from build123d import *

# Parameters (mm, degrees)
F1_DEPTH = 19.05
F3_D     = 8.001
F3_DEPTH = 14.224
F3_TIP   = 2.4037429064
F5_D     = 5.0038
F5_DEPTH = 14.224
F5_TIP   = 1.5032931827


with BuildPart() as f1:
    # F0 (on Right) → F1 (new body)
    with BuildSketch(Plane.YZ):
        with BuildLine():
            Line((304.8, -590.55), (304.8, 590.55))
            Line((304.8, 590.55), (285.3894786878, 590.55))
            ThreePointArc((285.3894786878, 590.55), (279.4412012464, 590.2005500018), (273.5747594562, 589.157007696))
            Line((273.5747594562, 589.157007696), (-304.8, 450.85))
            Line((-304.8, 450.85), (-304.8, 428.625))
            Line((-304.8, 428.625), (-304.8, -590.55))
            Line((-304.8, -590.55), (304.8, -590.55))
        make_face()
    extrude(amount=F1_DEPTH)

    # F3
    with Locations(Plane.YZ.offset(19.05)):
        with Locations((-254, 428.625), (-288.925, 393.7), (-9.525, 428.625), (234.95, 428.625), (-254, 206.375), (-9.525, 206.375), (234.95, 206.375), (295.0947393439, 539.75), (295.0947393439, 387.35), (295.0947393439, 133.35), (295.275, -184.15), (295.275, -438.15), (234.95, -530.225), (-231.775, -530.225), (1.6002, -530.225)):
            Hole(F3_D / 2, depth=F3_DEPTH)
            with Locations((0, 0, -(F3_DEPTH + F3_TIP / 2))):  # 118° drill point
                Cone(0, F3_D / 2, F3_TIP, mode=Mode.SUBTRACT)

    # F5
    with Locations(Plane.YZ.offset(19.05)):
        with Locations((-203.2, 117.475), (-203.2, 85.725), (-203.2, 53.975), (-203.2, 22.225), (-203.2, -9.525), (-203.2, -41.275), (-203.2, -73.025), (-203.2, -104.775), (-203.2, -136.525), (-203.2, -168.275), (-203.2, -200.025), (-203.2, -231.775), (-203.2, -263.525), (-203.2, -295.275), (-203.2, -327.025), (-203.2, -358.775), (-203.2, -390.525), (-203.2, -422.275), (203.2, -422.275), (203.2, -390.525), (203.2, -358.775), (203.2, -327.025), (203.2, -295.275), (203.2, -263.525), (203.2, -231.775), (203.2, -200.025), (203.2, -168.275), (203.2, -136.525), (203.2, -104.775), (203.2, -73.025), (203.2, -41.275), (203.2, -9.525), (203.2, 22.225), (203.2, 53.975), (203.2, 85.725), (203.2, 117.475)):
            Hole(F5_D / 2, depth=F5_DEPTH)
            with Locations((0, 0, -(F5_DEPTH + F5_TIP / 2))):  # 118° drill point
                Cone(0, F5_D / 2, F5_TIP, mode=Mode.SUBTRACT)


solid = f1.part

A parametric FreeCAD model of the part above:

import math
import FreeCAD as App
import Part
import Sketcher
Q = App.Units.Quantity

doc = App.newDocument("Part")
params = doc.addObject("Spreadsheet::Sheet", "Params")
for row, (alias, value) in enumerate([
    ("sketch1_radius", "2 in"),
    ("sketch1_width", "24 in"),
    ("sketch1_height", "41 in"),
    ("sketch1_height2", "46.5 in"),
    ("pad1_length", "0.75 in"),
    ("sketch2_diameter", "0.315 in"),
    ("hole_diameter", "0.315 in"),
    ("hole_depth", "0.56 in"),
    ("sketch3_diameter", "0.197 in"),
    ("hole2_diameter", "0.197 in"),
    ("hole2_depth", "0.56 in"),
], start=1):
    params.set(f"A{row}", alias)
    params.set(f"B{row}", "=" + value)
    params.setAlias(f"B{row}", alias)

body = doc.addObject("PartDesign::Body", "Body")

# Sketch on YZ plane
sketch1 = body.newObject("Sketcher::SketchObject", "Sketch")
sketch1.AttachmentSupport = (doc.getObject("YZ_Plane"), [""])
sketch1.MapMode = "FlatFace"
sketch1.addGeometry(Part.LineSegment(App.Vector(305, -591, 0), App.Vector(305, 591, 0)), False)
sketch1.addGeometry(Part.LineSegment(App.Vector(305, 591, 0), App.Vector(285, 591, 0)), False)
sketch1.addGeometry(Part.ArcOfCircle(Part.Circle(App.Vector(285, 540, 0), App.Vector(0, 0, 1), 51), math.radians(90), math.radians(103.45)), False)
sketch1.addGeometry(Part.LineSegment(App.Vector(274, 589, 0), App.Vector(-305, 451, 0)), False)
sketch1.addGeometry(Part.LineSegment(App.Vector(-305, 451, 0), App.Vector(-305, -591, 0)), False)
sketch1.addGeometry(Part.LineSegment(App.Vector(-305, -591, 0), App.Vector(305, -591, 0)), False)
sketch1.addConstraint(Sketcher.Constraint("Coincident", 0, 2, 1, 1))
sketch1.addConstraint(Sketcher.Constraint("Tangent", 1, 2, 2, 1))
sketch1.addConstraint(Sketcher.Constraint("Tangent", 2, 2, 3, 1))
sketch1.addConstraint(Sketcher.Constraint("Coincident", 3, 2, 4, 1))
sketch1.addConstraint(Sketcher.Constraint("Coincident", 4, 2, 5, 1))
sketch1.addConstraint(Sketcher.Constraint("Coincident", 5, 2, 0, 1))
sketch1.addConstraint(Sketcher.Constraint("Vertical", 0))
sketch1.addConstraint(Sketcher.Constraint("Horizontal", 1))
sketch1.addConstraint(Sketcher.Constraint("Vertical", 4))
sketch1.addConstraint(Sketcher.Constraint("Horizontal", 5))
sketch1.addConstraint(Sketcher.Constraint("Symmetric", 0, 2, 4, 2, -1, 1))
sketch1.addConstraint(Sketcher.Constraint("Radius", 2, Q("2 in")))
sketch1.addConstraint(Sketcher.Constraint("DistanceX", 5, 1, 5, 2, Q("24 in")))
sketch1.addConstraint(Sketcher.Constraint("DistanceY", 4, 2, 4, 1, Q("41 in")))
sketch1.addConstraint(Sketcher.Constraint("DistanceY", 0, 1, 0, 2, Q("46.5 in")))
sketch1.addConstraint(Sketcher.Constraint("DistanceX", 1, 2, 1, 1, 19.410521))
sketch1.setExpression("Constraints[11]", "Params.sketch1_radius")
sketch1.setExpression("Constraints[12]", "Params.sketch1_width")
sketch1.setExpression("Constraints[13]", "Params.sketch1_height")
sketch1.setExpression("Constraints[14]", "Params.sketch1_height2")
pad1 = body.newObject("PartDesign::Pad", "Pad")
pad1.Profile = sketch1
pad1.setExpression("Length", "Params.pad1_length")

# Sketch on YZ plane
sketch2 = body.newObject("Sketcher::SketchObject", "Sketch001")
sketch2.AttachmentSupport = (doc.getObject("YZ_Plane"), [""])
sketch2.MapMode = "FlatFace"
sketch2.AttachmentOffset = App.Placement(App.Vector(0, 0, 0.75 * 25.4), App.Rotation())
sketch2.addGeometry(Part.Circle(App.Vector(-254, 428.6, 0), App.Vector(0, 0, 1), 4), False)
sketch2.addGeometry(Part.Circle(App.Vector(-288.9, 393.7, 0), App.Vector(0, 0, 1), 4), False)
sketch2.addGeometry(Part.Circle(App.Vector(-9.5, 428.6, 0), App.Vector(0, 0, 1), 4), False)
sketch2.addGeometry(Part.Circle(App.Vector(234.9, 428.6, 0), App.Vector(0, 0, 1), 4), False)
sketch2.addGeometry(Part.Circle(App.Vector(-254, 206.4, 0), App.Vector(0, 0, 1), 4), False)
sketch2.addGeometry(Part.Circle(App.Vector(-9.5, 206.4, 0), App.Vector(0, 0, 1), 4), False)
sketch2.addGeometry(Part.Circle(App.Vector(234.9, 206.4, 0), App.Vector(0, 0, 1), 4), False)
sketch2.addGeometry(Part.Circle(App.Vector(295.1, 539.8, 0), App.Vector(0, 0, 1), 4), False)
sketch2.addGeometry(Part.Circle(App.Vector(295.1, 387.4, 0), App.Vector(0, 0, 1), 4), False)
sketch2.addGeometry(Part.Circle(App.Vector(295.1, 133.3, 0), App.Vector(0, 0, 1), 4), False)
sketch2.addGeometry(Part.Circle(App.Vector(295.3, -184.2, 0), App.Vector(0, 0, 1), 4), False)
sketch2.addGeometry(Part.Circle(App.Vector(295.3, -438.1, 0), App.Vector(0, 0, 1), 4), False)
sketch2.addGeometry(Part.Circle(App.Vector(234.9, -530.2, 0), App.Vector(0, 0, 1), 4), False)
sketch2.addGeometry(Part.Circle(App.Vector(-231.8, -530.2, 0), App.Vector(0, 0, 1), 4), False)
sketch2.addGeometry(Part.Circle(App.Vector(1.6, -530.2, 0), App.Vector(0, 0, 1), 4), False)
sketch2.addConstraint(Sketcher.Constraint("Equal", 0, 1))
sketch2.addConstraint(Sketcher.Constraint("Equal", 1, 2))
sketch2.addConstraint(Sketcher.Constraint("Equal", 2, 3))
sketch2.addConstraint(Sketcher.Constraint("Equal", 3, 4))
sketch2.addConstraint(Sketcher.Constraint("Equal", 4, 5))
sketch2.addConstraint(Sketcher.Constraint("Equal", 5, 6))
sketch2.addConstraint(Sketcher.Constraint("Equal", 6, 7))
sketch2.addConstraint(Sketcher.Constraint("Equal", 7, 8))
sketch2.addConstraint(Sketcher.Constraint("Equal", 8, 9))
sketch2.addConstraint(Sketcher.Constraint("Equal", 9, 10))
sketch2.addConstraint(Sketcher.Constraint("Equal", 10, 11))
sketch2.addConstraint(Sketcher.Constraint("Equal", 11, 12))
sketch2.addConstraint(Sketcher.Constraint("Equal", 12, 13))
sketch2.addConstraint(Sketcher.Constraint("Equal", 13, 14))
sketch2.addConstraint(Sketcher.Constraint("Horizontal", 0, 3, 2, 3))
sketch2.addConstraint(Sketcher.Constraint("Horizontal", 2, 3, 3, 3))
sketch2.addConstraint(Sketcher.Constraint("Horizontal", 4, 3, 5, 3))
sketch2.addConstraint(Sketcher.Constraint("Horizontal", 5, 3, 6, 3))
sketch2.addConstraint(Sketcher.Constraint("Horizontal", 12, 3, 13, 3))
sketch2.addConstraint(Sketcher.Constraint("Horizontal", 13, 3, 14, 3))
sketch2.addConstraint(Sketcher.Constraint("Vertical", 0, 3, 4, 3))
sketch2.addConstraint(Sketcher.Constraint("Vertical", 2, 3, 5, 3))
sketch2.addConstraint(Sketcher.Constraint("Vertical", 3, 3, 6, 3))
sketch2.addConstraint(Sketcher.Constraint("Vertical", 7, 3, 8, 3))
sketch2.addConstraint(Sketcher.Constraint("Vertical", 8, 3, 9, 3))
sketch2.addConstraint(Sketcher.Constraint("Vertical", 10, 3, 11, 3))
sketch2.addConstraint(Sketcher.Constraint("Vertical", 6, 3, 12, 3))
sketch2.addConstraint(Sketcher.Constraint("Diameter", 0, Q("0.315 in")))
sketch2.addConstraint(Sketcher.Constraint("DistanceX", 0, 3, -1, 1, Q("10 in")))
sketch2.addConstraint(Sketcher.Constraint("DistanceX", 1, 3, 2, 3, Q("11 in")))
sketch2.addConstraint(Sketcher.Constraint("DistanceY", 8, 3, 7, 3, Q("6 in")))
sketch2.addConstraint(Sketcher.Constraint("DistanceY", 9, 3, 8, 3, Q("10 in")))
sketch2.addConstraint(Sketcher.Constraint("DistanceX", 5, 3, 10, 3, Q("12 in")))
sketch2.addConstraint(Sketcher.Constraint("DistanceY", 11, 3, 10, 3, Q("10 in")))
sketch2.addConstraint(Sketcher.Constraint("DistanceY", 12, 3, 6, 3, Q("29 in")))
sketch2.addConstraint(Sketcher.Constraint("DistanceY", -1, 1, 1, 3, Q("15.5 in")))
sketch2.addConstraint(Sketcher.Constraint("DistanceY", 10, 3, 9, 3, Q("12.5 in")))
sketch2.addConstraint(Sketcher.Constraint("DistanceX", -1, 1, 3, 3, Q("9.25 in")))
sketch2.addConstraint(Sketcher.Constraint("DistanceY", -1, 1, 7, 3, Q("21.25 in")))
sketch2.addConstraint(Sketcher.Constraint("DistanceY", 4, 3, 0, 3, Q("8.75 in")))
sketch2.addConstraint(Sketcher.Constraint("DistanceX", 13, 3, 11, 3, Q("20.75 in")))
sketch2.addConstraint(Sketcher.Constraint("DistanceY", -1, 1, 0, 3, Q("16.875 in")))
sketch2.addConstraint(Sketcher.Constraint("DistanceX", 1, 3, -1, 1, Q("11.375 in")))
sketch2.addConstraint(Sketcher.Constraint("DistanceX", -1, 1, 14, 3, Q("0.063 in")))
sketch2.addConstraint(Sketcher.Constraint("DistanceX", -1, 1, 7, 3, 295.094739))
sketch2.setExpression("Constraints[27]", "Params.sketch2_diameter")
doc.recompute()
hole = body.newObject("PartDesign::Hole", "Hole")
hole.Profile = sketch2
hole.ThreadType = "None"
hole.setExpression("Diameter", "Params.hole_diameter")
hole.DepthType = "Dimension"
hole.setExpression("Depth", "Params.hole_depth")
hole.DrillPoint = "Angled"
hole.DrillPointAngle = 118

# Sketch on YZ plane
sketch3 = body.newObject("Sketcher::SketchObject", "Sketch002")
sketch3.AttachmentSupport = (doc.getObject("YZ_Plane"), [""])
sketch3.MapMode = "FlatFace"
sketch3.AttachmentOffset = App.Placement(App.Vector(0, 0, 0.75 * 25.4), App.Rotation())
sketch3.addGeometry(Part.Circle(App.Vector(-203.2, 117.5, 0), App.Vector(0, 0, 1), 2.5), False)
sketch3.addGeometry(Part.Circle(App.Vector(-203.2, 85.7, 0), App.Vector(0, 0, 1), 2.5), False)
sketch3.addGeometry(Part.Circle(App.Vector(-203.2, 54, 0), App.Vector(0, 0, 1), 2.5), False)
sketch3.addGeometry(Part.Circle(App.Vector(-203.2, 22.2, 0), App.Vector(0, 0, 1), 2.5), False)
sketch3.addGeometry(Part.Circle(App.Vector(-203.2, -9.5, 0), App.Vector(0, 0, 1), 2.5), False)
sketch3.addGeometry(Part.Circle(App.Vector(-203.2, -41.3, 0), App.Vector(0, 0, 1), 2.5), False)
sketch3.addGeometry(Part.Circle(App.Vector(-203.2, -73, 0), App.Vector(0, 0, 1), 2.5), False)
sketch3.addGeometry(Part.Circle(App.Vector(-203.2, -104.8, 0), App.Vector(0, 0, 1), 2.5), False)
sketch3.addGeometry(Part.Circle(App.Vector(-203.2, -136.5, 0), App.Vector(0, 0, 1), 2.5), False)
sketch3.addGeometry(Part.Circle(App.Vector(-203.2, -168.3, 0), App.Vector(0, 0, 1), 2.5), False)
sketch3.addGeometry(Part.Circle(App.Vector(-203.2, -200, 0), App.Vector(0, 0, 1), 2.5), False)
sketch3.addGeometry(Part.Circle(App.Vector(-203.2, -231.8, 0), App.Vector(0, 0, 1), 2.5), False)
sketch3.addGeometry(Part.Circle(App.Vector(-203.2, -263.5, 0), App.Vector(0, 0, 1), 2.5), False)
sketch3.addGeometry(Part.Circle(App.Vector(-203.2, -295.3, 0), App.Vector(0, 0, 1), 2.5), False)
sketch3.addGeometry(Part.Circle(App.Vector(-203.2, -327, 0), App.Vector(0, 0, 1), 2.5), False)
sketch3.addGeometry(Part.Circle(App.Vector(-203.2, -358.8, 0), App.Vector(0, 0, 1), 2.5), False)
sketch3.addGeometry(Part.Circle(App.Vector(-203.2, -390.5, 0), App.Vector(0, 0, 1), 2.5), False)
sketch3.addGeometry(Part.Circle(App.Vector(-203.2, -422.3, 0), App.Vector(0, 0, 1), 2.5), False)
sketch3.addGeometry(Part.Circle(App.Vector(203.2, -422.3, 0), App.Vector(0, 0, 1), 2.5), False)
sketch3.addGeometry(Part.Circle(App.Vector(203.2, -390.5, 0), App.Vector(0, 0, 1), 2.5), False)
sketch3.addGeometry(Part.Circle(App.Vector(203.2, -358.8, 0), App.Vector(0, 0, 1), 2.5), False)
sketch3.addGeometry(Part.Circle(App.Vector(203.2, -327, 0), App.Vector(0, 0, 1), 2.5), False)
sketch3.addGeometry(Part.Circle(App.Vector(203.2, -295.3, 0), App.Vector(0, 0, 1), 2.5), False)
sketch3.addGeometry(Part.Circle(App.Vector(203.2, -263.5, 0), App.Vector(0, 0, 1), 2.5), False)
sketch3.addGeometry(Part.Circle(App.Vector(203.2, -231.8, 0), App.Vector(0, 0, 1), 2.5), False)
sketch3.addGeometry(Part.Circle(App.Vector(203.2, -200, 0), App.Vector(0, 0, 1), 2.5), False)
sketch3.addGeometry(Part.Circle(App.Vector(203.2, -168.3, 0), App.Vector(0, 0, 1), 2.5), False)
sketch3.addGeometry(Part.Circle(App.Vector(203.2, -136.5, 0), App.Vector(0, 0, 1), 2.5), False)
sketch3.addGeometry(Part.Circle(App.Vector(203.2, -104.8, 0), App.Vector(0, 0, 1), 2.5), False)
sketch3.addGeometry(Part.Circle(App.Vector(203.2, -73, 0), App.Vector(0, 0, 1), 2.5), False)
sketch3.addGeometry(Part.Circle(App.Vector(203.2, -41.3, 0), App.Vector(0, 0, 1), 2.5), False)
sketch3.addGeometry(Part.Circle(App.Vector(203.2, -9.5, 0), App.Vector(0, 0, 1), 2.5), False)
sketch3.addGeometry(Part.Circle(App.Vector(203.2, 22.2, 0), App.Vector(0, 0, 1), 2.5), False)
sketch3.addGeometry(Part.Circle(App.Vector(203.2, 54, 0), App.Vector(0, 0, 1), 2.5), False)
sketch3.addGeometry(Part.Circle(App.Vector(203.2, 85.7, 0), App.Vector(0, 0, 1), 2.5), False)
sketch3.addGeometry(Part.Circle(App.Vector(203.2, 117.5, 0), App.Vector(0, 0, 1), 2.5), False)
sketch3.addConstraint(Sketcher.Constraint("Equal", 0, 1))
sketch3.addConstraint(Sketcher.Constraint("Equal", 1, 2))
sketch3.addConstraint(Sketcher.Constraint("Equal", 2, 3))
sketch3.addConstraint(Sketcher.Constraint("Equal", 3, 4))
sketch3.addConstraint(Sketcher.Constraint("Equal", 4, 5))
sketch3.addConstraint(Sketcher.Constraint("Equal", 5, 6))
sketch3.addConstraint(Sketcher.Constraint("Equal", 6, 7))
sketch3.addConstraint(Sketcher.Constraint("Equal", 7, 8))
sketch3.addConstraint(Sketcher.Constraint("Equal", 8, 9))
sketch3.addConstraint(Sketcher.Constraint("Equal", 9, 10))
sketch3.addConstraint(Sketcher.Constraint("Equal", 10, 11))
sketch3.addConstraint(Sketcher.Constraint("Equal", 11, 12))
sketch3.addConstraint(Sketcher.Constraint("Equal", 12, 13))
sketch3.addConstraint(Sketcher.Constraint("Equal", 13, 14))
sketch3.addConstraint(Sketcher.Constraint("Equal", 14, 15))
sketch3.addConstraint(Sketcher.Constraint("Equal", 15, 16))
sketch3.addConstraint(Sketcher.Constraint("Equal", 16, 17))
sketch3.addConstraint(Sketcher.Constraint("Equal", 17, 18))
sketch3.addConstraint(Sketcher.Constraint("Equal", 18, 19))
sketch3.addConstraint(Sketcher.Constraint("Equal", 19, 20))
sketch3.addConstraint(Sketcher.Constraint("Equal", 20, 21))
sketch3.addConstraint(Sketcher.Constraint("Equal", 21, 22))
sketch3.addConstraint(Sketcher.Constraint("Equal", 22, 23))
sketch3.addConstraint(Sketcher.Constraint("Equal", 23, 24))
sketch3.addConstraint(Sketcher.Constraint("Equal", 24, 25))
sketch3.addConstraint(Sketcher.Constraint("Equal", 25, 26))
sketch3.addConstraint(Sketcher.Constraint("Equal", 26, 27))
sketch3.addConstraint(Sketcher.Constraint("Equal", 27, 28))
sketch3.addConstraint(Sketcher.Constraint("Equal", 28, 29))
sketch3.addConstraint(Sketcher.Constraint("Equal", 29, 30))
sketch3.addConstraint(Sketcher.Constraint("Equal", 30, 31))
sketch3.addConstraint(Sketcher.Constraint("Equal", 31, 32))
sketch3.addConstraint(Sketcher.Constraint("Equal", 32, 33))
sketch3.addConstraint(Sketcher.Constraint("Equal", 33, 34))
sketch3.addConstraint(Sketcher.Constraint("Equal", 34, 35))
sketch3.addConstraint(Sketcher.Constraint("Symmetric", 17, 3, 18, 3, -2))
sketch3.addConstraint(Sketcher.Constraint("Symmetric", 16, 3, 19, 3, -2))
sketch3.addConstraint(Sketcher.Constraint("Symmetric", 15, 3, 20, 3, -2))
sketch3.addConstraint(Sketcher.Constraint("Symmetric", 14, 3, 21, 3, -2))
sketch3.addConstraint(Sketcher.Constraint("Symmetric", 13, 3, 22, 3, -2))
sketch3.addConstraint(Sketcher.Constraint("Symmetric", 12, 3, 23, 3, -2))
sketch3.addConstraint(Sketcher.Constraint("Symmetric", 11, 3, 24, 3, -2))
sketch3.addConstraint(Sketcher.Constraint("Symmetric", 10, 3, 25, 3, -2))
sketch3.addConstraint(Sketcher.Constraint("Symmetric", 9, 3, 26, 3, -2))
sketch3.addConstraint(Sketcher.Constraint("Symmetric", 8, 3, 27, 3, -2))
sketch3.addConstraint(Sketcher.Constraint("Symmetric", 7, 3, 28, 3, -2))
sketch3.addConstraint(Sketcher.Constraint("Symmetric", 6, 3, 29, 3, -2))
sketch3.addConstraint(Sketcher.Constraint("Symmetric", 5, 3, 30, 3, -2))
sketch3.addConstraint(Sketcher.Constraint("Symmetric", 4, 3, 31, 3, -2))
sketch3.addConstraint(Sketcher.Constraint("Symmetric", 3, 3, 32, 3, -2))
sketch3.addConstraint(Sketcher.Constraint("Symmetric", 2, 3, 33, 3, -2))
sketch3.addConstraint(Sketcher.Constraint("Symmetric", 1, 3, 34, 3, -2))
sketch3.addConstraint(Sketcher.Constraint("Symmetric", 0, 3, 35, 3, -2))
sketch3.addConstraint(Sketcher.Constraint("Vertical", 0, 3, 1, 3))
sketch3.addConstraint(Sketcher.Constraint("Vertical", 1, 3, 2, 3))
sketch3.addConstraint(Sketcher.Constraint("Vertical", 2, 3, 3, 3))
sketch3.addConstraint(Sketcher.Constraint("Vertical", 3, 3, 4, 3))
sketch3.addConstraint(Sketcher.Constraint("Vertical", 4, 3, 5, 3))
sketch3.addConstraint(Sketcher.Constraint("Vertical", 5, 3, 6, 3))
sketch3.addConstraint(Sketcher.Constraint("Vertical", 6, 3, 7, 3))
sketch3.addConstraint(Sketcher.Constraint("Vertical", 7, 3, 8, 3))
sketch3.addConstraint(Sketcher.Constraint("Vertical", 8, 3, 9, 3))
sketch3.addConstraint(Sketcher.Constraint("Vertical", 9, 3, 10, 3))
sketch3.addConstraint(Sketcher.Constraint("Vertical", 10, 3, 11, 3))
sketch3.addConstraint(Sketcher.Constraint("Vertical", 11, 3, 12, 3))
sketch3.addConstraint(Sketcher.Constraint("Vertical", 12, 3, 13, 3))
sketch3.addConstraint(Sketcher.Constraint("Vertical", 13, 3, 14, 3))
sketch3.addConstraint(Sketcher.Constraint("Vertical", 14, 3, 15, 3))
sketch3.addConstraint(Sketcher.Constraint("Vertical", 15, 3, 16, 3))
sketch3.addConstraint(Sketcher.Constraint("Vertical", 16, 3, 17, 3))
sketch3.addConstraint(Sketcher.Constraint("Diameter", 0, Q("0.197 in")))
sketch3.addConstraint(Sketcher.Constraint("DistanceX", 0, 3, -1, 1, Q("8 in")))
sketch3.addConstraint(Sketcher.Constraint("DistanceY", 4, 3, 0, 3, Q("5 in")))
sketch3.addConstraint(Sketcher.Constraint("DistanceY", 5, 3, 1, 3, Q("5 in")))
sketch3.addConstraint(Sketcher.Constraint("DistanceY", 6, 3, 2, 3, Q("5 in")))
sketch3.addConstraint(Sketcher.Constraint("DistanceY", 7, 3, 3, 3, Q("5 in")))
sketch3.addConstraint(Sketcher.Constraint("DistanceY", 8, 3, 4, 3, Q("5 in")))
sketch3.addConstraint(Sketcher.Constraint("DistanceY", 9, 3, 5, 3, Q("5 in")))
sketch3.addConstraint(Sketcher.Constraint("DistanceY", 10, 3, 6, 3, Q("5 in")))
sketch3.addConstraint(Sketcher.Constraint("DistanceY", 11, 3, 7, 3, Q("5 in")))
sketch3.addConstraint(Sketcher.Constraint("DistanceY", 12, 3, 8, 3, Q("5 in")))
sketch3.addConstraint(Sketcher.Constraint("DistanceY", 13, 3, 9, 3, Q("5 in")))
sketch3.addConstraint(Sketcher.Constraint("DistanceY", 14, 3, 10, 3, Q("5 in")))
sketch3.addConstraint(Sketcher.Constraint("DistanceY", 15, 3, 11, 3, Q("5 in")))
sketch3.addConstraint(Sketcher.Constraint("DistanceY", 16, 3, 12, 3, Q("5 in")))
sketch3.addConstraint(Sketcher.Constraint("DistanceY", 17, 3, 13, 3, Q("5 in")))
sketch3.addConstraint(Sketcher.Constraint("DistanceY", 2, 3, 0, 3, Q("2.5 in")))
sketch3.addConstraint(Sketcher.Constraint("DistanceY", 3, 3, 1, 3, Q("2.5 in")))
sketch3.addConstraint(Sketcher.Constraint("DistanceY", 1, 3, 0, 3, Q("1.25 in")))
sketch3.addConstraint(Sketcher.Constraint("DistanceY", -1, 1, 0, 3, Q("4.625 in")))
sketch3.setExpression("Constraints[70]", "Params.sketch3_diameter")
doc.recompute()
hole2 = body.newObject("PartDesign::Hole", "Hole001")
hole2.Profile = sketch3
hole2.ThreadType = "None"
hole2.setExpression("Diameter", "Params.hole2_diameter")
hole2.DepthType = "Dimension"
hole2.setExpression("Depth", "Params.hole2_depth")
hole2.DrillPoint = "Angled"
hole2.DrillPointAngle = 118

doc.recompute()
